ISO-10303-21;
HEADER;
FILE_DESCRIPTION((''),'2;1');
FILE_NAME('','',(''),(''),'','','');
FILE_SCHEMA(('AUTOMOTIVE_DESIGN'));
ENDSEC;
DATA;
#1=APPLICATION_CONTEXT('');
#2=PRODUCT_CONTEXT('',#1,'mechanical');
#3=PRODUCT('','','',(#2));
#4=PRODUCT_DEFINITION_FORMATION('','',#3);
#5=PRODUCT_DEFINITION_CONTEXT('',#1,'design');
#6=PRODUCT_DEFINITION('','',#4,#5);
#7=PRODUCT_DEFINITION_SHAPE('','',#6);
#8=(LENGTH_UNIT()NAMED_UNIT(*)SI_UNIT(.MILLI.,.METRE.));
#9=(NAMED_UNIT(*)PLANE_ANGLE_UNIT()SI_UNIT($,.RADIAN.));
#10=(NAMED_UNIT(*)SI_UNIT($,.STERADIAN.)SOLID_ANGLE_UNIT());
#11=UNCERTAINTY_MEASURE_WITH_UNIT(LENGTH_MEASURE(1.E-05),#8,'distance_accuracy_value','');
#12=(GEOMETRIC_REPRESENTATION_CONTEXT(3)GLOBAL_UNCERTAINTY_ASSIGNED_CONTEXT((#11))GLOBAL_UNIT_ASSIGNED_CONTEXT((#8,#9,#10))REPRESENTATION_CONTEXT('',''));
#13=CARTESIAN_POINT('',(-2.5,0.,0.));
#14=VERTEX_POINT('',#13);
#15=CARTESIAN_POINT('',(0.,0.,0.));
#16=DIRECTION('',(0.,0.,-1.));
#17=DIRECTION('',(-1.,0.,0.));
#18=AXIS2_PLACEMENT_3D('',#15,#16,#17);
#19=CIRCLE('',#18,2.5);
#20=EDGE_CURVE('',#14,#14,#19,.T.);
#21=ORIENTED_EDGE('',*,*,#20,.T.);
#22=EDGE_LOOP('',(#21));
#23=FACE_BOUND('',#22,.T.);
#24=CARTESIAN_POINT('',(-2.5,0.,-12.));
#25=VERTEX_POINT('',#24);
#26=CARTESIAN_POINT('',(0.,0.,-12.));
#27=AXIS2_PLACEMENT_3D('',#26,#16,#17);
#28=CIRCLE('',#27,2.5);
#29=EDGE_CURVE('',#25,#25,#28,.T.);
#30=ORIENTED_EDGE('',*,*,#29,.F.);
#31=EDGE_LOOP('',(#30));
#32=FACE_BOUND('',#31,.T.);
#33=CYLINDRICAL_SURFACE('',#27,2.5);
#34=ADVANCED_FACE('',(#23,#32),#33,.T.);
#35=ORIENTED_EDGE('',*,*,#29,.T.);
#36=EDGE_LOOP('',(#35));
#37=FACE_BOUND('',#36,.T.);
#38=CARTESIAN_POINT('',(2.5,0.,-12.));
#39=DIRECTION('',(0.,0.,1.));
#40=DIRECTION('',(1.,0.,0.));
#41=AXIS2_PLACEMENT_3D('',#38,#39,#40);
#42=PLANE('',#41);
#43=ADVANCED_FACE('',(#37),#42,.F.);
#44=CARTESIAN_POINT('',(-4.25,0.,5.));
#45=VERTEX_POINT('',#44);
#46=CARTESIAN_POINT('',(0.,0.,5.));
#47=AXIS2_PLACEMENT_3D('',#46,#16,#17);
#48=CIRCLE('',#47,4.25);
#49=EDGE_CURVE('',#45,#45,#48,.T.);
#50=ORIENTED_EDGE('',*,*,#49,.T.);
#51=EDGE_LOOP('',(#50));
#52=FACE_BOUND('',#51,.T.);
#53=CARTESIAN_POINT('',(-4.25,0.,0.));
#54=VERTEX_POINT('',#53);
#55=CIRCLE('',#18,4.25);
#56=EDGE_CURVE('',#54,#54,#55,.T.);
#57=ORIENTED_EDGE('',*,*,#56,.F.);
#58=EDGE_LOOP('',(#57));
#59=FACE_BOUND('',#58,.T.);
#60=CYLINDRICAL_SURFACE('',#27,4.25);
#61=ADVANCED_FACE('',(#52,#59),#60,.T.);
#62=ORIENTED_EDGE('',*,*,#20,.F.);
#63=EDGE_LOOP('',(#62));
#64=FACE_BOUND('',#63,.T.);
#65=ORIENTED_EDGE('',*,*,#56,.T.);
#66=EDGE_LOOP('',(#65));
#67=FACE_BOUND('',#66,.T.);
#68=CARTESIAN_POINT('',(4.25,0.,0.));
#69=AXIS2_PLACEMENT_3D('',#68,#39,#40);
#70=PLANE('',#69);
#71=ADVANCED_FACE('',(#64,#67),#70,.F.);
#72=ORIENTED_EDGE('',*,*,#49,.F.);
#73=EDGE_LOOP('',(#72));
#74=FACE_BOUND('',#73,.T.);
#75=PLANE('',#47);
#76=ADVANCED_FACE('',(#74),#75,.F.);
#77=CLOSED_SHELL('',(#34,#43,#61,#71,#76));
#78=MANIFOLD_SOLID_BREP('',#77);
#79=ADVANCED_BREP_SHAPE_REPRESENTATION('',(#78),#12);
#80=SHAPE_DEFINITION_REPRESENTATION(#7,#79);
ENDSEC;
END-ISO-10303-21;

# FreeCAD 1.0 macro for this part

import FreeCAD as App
import Part
import Sketcher
from FreeCAD import Vector
Q = App.Units.Quantity


def add_polygon(sketch, points):
    """Adds a closed chain of lines whose ends are joined by coincident constraints."""
    first, n = sketch.GeometryCount, len(points)
    for a, b in zip(points, points[1:] + points[:1]):
        sketch.addGeometry(Part.LineSegment(App.Vector(*a, 0), App.Vector(*b, 0)), False)
    for i in range(n):
        sketch.addConstraint(Sketcher.Constraint("Coincident", first + i, 2, first + (i + 1) % n, 1))

doc = App.newDocument("Part")
body = doc.addObject("PartDesign::Body", "Body")

# Sketch on XZ plane
sketch1 = body.newObject("Sketcher::SketchObject", "Sketch")
sketch1.AttachmentSupport = (doc.getObject("XZ_Plane"), [""])
sketch1.MapMode = "FlatFace"
add_polygon(sketch1, [(0, 5), (4.25, 5), (4.25, 0), (2.5, 0), (2.5, -12), (0, -12)])  # lines 0-5
sketch1.addConstraint([
    Sketcher.Constraint("Horizontal", 0),
    Sketcher.Constraint("Vertical", 1),
    Sketcher.Constraint("Horizontal", 2),
    Sketcher.Constraint("Vertical", 3),
    Sketcher.Constraint("Horizontal", 4),
    Sketcher.Constraint("Vertical", 5),
    Sketcher.Constraint("PointOnObject", 1, 2, -1),
    Sketcher.Constraint("PointOnObject", 4, 2, -2),
    Sketcher.Constraint("DistanceY", 1, 2, 1, 1, Q("5 mm")),
    Sketcher.Constraint("DistanceY", 3, 2, 3, 1, Q("12 mm")),
    Sketcher.Constraint("DistanceX", 4, 2, 4, 1, Q("2.5 mm")),
    Sketcher.Constraint("DistanceX", 0, 1, 0, 2, Q("4.25 mm")),
])
revolution = body.newObject("PartDesign::Revolution", "Revolution")
revolution.Profile = sketch1
revolution.ReferenceAxis = (sketch1, ["V_Axis"])
revolution.Angle = 360

doc.recompute()
